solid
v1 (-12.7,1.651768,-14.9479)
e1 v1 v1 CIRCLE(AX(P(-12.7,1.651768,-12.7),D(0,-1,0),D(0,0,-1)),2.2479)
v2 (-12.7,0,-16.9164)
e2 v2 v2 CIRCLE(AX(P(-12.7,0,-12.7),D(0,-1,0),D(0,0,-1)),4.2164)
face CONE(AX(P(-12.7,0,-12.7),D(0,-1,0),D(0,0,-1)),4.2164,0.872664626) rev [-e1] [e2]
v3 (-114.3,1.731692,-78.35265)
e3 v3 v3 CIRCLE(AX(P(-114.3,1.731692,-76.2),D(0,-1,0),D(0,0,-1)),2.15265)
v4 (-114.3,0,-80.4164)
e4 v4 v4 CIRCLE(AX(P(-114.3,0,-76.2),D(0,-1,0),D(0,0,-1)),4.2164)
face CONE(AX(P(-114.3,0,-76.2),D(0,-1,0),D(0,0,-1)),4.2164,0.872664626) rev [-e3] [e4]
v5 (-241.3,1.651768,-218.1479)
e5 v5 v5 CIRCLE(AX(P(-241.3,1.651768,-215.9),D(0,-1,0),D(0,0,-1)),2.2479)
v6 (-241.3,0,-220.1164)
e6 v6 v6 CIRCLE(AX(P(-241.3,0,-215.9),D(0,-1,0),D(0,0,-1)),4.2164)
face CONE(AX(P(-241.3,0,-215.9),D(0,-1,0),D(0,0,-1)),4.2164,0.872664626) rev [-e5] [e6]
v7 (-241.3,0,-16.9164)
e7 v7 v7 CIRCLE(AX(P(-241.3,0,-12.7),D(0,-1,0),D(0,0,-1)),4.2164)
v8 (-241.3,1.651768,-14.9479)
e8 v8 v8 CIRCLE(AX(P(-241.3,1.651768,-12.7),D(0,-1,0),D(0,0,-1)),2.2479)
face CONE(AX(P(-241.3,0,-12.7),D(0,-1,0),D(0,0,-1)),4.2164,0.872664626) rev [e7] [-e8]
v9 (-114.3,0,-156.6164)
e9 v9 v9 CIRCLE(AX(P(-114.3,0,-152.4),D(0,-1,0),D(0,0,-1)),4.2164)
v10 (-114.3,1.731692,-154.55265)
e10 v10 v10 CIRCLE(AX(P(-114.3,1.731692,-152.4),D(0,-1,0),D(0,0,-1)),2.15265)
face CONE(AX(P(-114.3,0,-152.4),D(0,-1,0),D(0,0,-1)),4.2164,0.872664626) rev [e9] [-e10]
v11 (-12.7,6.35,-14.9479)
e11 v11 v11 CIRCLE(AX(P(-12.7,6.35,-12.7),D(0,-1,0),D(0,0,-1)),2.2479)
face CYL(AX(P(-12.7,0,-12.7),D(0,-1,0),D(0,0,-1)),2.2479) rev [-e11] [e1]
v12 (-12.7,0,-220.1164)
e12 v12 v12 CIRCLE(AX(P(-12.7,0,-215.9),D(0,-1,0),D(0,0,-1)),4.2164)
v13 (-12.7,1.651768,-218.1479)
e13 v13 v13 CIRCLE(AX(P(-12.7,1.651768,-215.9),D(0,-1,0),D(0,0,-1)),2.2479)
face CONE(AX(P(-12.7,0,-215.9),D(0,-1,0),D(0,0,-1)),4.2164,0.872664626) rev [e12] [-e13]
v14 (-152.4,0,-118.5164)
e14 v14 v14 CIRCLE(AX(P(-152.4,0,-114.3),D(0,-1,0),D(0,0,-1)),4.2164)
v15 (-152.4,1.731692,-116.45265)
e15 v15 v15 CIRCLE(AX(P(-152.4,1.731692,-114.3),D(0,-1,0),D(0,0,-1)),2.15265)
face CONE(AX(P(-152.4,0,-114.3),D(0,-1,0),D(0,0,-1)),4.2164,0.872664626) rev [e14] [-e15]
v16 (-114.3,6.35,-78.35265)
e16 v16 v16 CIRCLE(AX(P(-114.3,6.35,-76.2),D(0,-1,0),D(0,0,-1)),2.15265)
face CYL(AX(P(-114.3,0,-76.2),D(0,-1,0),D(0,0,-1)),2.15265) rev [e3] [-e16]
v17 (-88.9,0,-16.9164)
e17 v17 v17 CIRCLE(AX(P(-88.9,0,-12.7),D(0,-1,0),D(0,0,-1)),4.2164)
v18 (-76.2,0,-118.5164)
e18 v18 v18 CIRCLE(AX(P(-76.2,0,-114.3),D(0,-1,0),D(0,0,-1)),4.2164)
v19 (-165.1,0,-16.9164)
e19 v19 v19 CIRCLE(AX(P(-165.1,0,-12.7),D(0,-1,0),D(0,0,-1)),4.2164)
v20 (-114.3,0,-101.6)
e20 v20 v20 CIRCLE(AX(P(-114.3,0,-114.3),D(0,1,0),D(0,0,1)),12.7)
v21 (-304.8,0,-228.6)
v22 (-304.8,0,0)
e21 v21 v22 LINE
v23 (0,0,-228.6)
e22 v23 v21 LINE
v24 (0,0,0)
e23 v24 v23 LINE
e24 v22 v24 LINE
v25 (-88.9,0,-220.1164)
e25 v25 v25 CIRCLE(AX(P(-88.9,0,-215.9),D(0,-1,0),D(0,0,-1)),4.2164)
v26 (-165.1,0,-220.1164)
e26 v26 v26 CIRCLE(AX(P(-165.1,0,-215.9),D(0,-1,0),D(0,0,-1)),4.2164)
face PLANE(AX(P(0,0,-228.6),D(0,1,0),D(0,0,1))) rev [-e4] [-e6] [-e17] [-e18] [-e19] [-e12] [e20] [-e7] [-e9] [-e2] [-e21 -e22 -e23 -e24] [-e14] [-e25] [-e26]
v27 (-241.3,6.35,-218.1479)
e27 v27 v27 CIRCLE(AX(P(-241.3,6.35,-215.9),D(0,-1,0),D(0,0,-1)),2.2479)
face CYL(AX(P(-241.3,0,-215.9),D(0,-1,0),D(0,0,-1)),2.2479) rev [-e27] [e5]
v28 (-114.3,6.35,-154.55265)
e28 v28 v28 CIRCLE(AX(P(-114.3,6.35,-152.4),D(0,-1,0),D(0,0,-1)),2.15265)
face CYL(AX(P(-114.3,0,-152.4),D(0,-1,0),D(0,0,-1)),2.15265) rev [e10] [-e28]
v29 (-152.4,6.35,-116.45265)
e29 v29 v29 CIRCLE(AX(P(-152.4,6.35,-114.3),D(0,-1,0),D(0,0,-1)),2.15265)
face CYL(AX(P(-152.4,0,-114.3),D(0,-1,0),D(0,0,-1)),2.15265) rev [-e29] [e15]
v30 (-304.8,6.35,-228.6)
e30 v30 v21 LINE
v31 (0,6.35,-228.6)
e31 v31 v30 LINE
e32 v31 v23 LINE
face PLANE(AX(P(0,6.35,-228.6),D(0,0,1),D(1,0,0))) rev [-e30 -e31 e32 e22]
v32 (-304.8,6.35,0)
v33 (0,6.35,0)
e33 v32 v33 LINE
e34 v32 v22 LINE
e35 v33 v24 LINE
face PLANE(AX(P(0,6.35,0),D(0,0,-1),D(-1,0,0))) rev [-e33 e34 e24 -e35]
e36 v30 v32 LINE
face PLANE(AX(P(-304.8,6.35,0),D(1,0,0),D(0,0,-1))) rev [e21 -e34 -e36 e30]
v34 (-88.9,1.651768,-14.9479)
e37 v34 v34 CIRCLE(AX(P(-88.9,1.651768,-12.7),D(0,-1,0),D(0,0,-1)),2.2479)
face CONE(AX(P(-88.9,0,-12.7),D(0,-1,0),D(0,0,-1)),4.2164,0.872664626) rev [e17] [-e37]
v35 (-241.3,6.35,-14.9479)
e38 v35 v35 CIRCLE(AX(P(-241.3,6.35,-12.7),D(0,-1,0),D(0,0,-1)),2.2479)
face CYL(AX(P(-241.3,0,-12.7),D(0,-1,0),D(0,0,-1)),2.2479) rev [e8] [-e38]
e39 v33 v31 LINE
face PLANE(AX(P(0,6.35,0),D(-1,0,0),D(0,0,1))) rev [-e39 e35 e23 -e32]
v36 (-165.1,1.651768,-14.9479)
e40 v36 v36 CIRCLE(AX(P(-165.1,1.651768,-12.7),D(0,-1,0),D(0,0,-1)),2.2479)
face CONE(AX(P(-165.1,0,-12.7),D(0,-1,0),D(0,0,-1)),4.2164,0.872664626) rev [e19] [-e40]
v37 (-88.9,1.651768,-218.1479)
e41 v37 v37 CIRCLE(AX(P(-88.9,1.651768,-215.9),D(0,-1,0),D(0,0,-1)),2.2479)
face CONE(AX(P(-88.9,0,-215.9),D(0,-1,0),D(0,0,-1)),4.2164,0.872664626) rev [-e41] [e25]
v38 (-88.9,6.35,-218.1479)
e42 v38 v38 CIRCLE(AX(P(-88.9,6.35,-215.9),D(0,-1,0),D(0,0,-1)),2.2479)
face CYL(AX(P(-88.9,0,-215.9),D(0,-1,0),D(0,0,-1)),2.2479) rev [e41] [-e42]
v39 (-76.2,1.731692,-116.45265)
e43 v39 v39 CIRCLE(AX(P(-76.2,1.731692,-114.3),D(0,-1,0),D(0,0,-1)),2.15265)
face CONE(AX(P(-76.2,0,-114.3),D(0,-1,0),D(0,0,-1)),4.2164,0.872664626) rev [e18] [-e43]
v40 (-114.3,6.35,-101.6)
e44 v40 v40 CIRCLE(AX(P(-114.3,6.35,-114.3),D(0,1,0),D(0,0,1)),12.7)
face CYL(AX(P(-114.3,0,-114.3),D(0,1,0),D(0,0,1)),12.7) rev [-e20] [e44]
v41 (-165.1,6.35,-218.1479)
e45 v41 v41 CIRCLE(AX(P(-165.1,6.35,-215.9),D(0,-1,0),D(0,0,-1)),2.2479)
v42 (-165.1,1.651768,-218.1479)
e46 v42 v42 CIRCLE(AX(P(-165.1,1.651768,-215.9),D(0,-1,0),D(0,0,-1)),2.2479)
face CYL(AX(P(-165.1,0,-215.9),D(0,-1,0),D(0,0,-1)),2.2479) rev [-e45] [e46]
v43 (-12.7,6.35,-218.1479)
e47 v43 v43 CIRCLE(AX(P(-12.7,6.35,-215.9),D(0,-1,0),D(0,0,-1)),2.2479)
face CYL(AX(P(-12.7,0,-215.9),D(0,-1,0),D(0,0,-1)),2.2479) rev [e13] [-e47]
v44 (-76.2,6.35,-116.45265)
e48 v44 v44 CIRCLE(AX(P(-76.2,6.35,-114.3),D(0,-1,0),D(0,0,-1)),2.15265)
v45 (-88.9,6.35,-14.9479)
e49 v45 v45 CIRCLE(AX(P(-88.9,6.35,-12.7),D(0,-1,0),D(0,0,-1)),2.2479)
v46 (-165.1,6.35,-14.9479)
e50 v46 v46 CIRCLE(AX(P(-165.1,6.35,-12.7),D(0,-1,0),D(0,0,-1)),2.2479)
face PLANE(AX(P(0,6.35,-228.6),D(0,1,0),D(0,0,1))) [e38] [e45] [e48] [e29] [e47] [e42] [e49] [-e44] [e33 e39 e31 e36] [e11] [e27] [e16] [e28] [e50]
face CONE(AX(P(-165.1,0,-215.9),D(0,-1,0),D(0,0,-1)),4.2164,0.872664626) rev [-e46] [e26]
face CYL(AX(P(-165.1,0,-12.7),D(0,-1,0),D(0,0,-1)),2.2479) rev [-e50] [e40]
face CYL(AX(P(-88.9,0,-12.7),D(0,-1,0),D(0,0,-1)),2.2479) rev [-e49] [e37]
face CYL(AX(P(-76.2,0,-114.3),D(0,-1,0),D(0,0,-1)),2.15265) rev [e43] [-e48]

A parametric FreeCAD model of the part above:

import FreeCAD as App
import Part
import Sketcher

V = App.Vector
Q = App.Units.Quantity


def add_polygon(sketch, points):
    """Adds a closed chain of lines whose ends are joined by coincident constraints."""
    first, n = sketch.GeometryCount, len(points)
    for a, b in zip(points, points[1:] + points[:1]):
        sketch.addGeometry(Part.LineSegment(App.Vector(*a, 0), App.Vector(*b, 0)), False)
    for i in range(n):
        sketch.addConstraint(Sketcher.Constraint("Coincident", first + i, 2, first + (i + 1) % n, 1))

doc = App.newDocument("Part")
params = doc.addObject("Spreadsheet::Sheet", "Params")
for row, (alias, value) in enumerate([
    ("sketch1_width", "12 in"),
    ("sketch1_height", "9 in"),
    ("pad1_length", "0.25 in"),
    ("hole_diameter", "0.1695 in"),
    ("hole_csink_diameter", "0.332 in"),
    ("sketch3_diameter", "1 in"),
    ("sketch4_diameter", "0.177 in"),
    ("hole2_diameter", "0.177 in"),
    ("hole2_csink_diameter", "0.332 in"),
    ("linearpattern_pitch", "3 in"),
], start=1):
    params.set(f"A{row}", alias)
    params.set(f"B{row}", "=" + value)
    params.setAlias(f"B{row}", alias)

body = doc.addObject("PartDesign::Body", "Body")

sketch1 = body.newObject("Sketcher::SketchObject", "Sketch")
sketch1.AttachmentSupport = (doc.getObject("XZ_Plane"), [""])
sketch1.MapMode = "FlatFace"
add_polygon(sketch1, [(-305, -229), (-305, 0), (0, 0), (0, -229)])
sketch1.addConstraint([
    Sketcher.Constraint("Vertical", 0),
    Sketcher.Constraint("Horizontal", 1),
    Sketcher.Constraint("Vertical", 2),
    Sketcher.Constraint("Horizontal", 3),
    Sketcher.Constraint("Coincident", 1, 2, -1, 1),
    Sketcher.Constraint("DistanceX", 1, 1, 1, 2, Q("12 in")),
    Sketcher.Constraint("DistanceY", 0, 1, 0, 2, Q("9 in")),
])
sketch1.setExpression("Constraints[9]", "Params.sketch1_width")
sketch1.setExpression("Constraints[10]", "Params.sketch1_height")
pad1 = body.newObject("PartDesign::Pad", "Pad")
pad1.Profile = sketch1
pad1.setExpression("Length", "Params.pad1_length")
pad1.Reversed = True

sketch2 = body.newObject("Sketcher::SketchObject", "Sketch001")
sketch2.AttachmentSupport = (doc.getObject("XZ_Plane"), [""])
sketch2.MapMode = "FlatFace"
sketch2.addGeometry(Part.Circle(V(-114.3, -76.2, 0), V(0, 0, 1), 2.2), False)
sketch2.addConstraint([
    Sketcher.Constraint("DistanceY", 0, 3, -1, 1, Q("3 in")),
    Sketcher.Constraint("Diameter", 0, Q("0.1695 in")),
    Sketcher.Constraint("DistanceX", 0, 3, -1, 1, Q("4.5 in")),
])
doc.recompute()
hole = body.newObject("PartDesign::Hole", "Hole")
hole.Profile = sketch2
hole.ThreadType = "None"
hole.setExpression("Diameter", "Params.hole_diameter")
hole.DepthType = "ThroughAll"
hole.HoleCutType = "Countersink"
hole.setExpression("HoleCutDiameter", "Params.hole_csink_diameter")
hole.HoleCutCountersinkAngle = 100
doc.recompute()

datumline = body.newObject("PartDesign::Line", "DatumLine")
datumline.Placement = App.Placement(V(-114.3, 0, -114.3), App.Rotation(V(0, 0, 1), V(0, 1, 0)))
polarpattern = body.newObject("PartDesign::PolarPattern", "PolarPattern")
polarpattern.Originals = [hole]
polarpattern.Axis = (datumline, [""])
polarpattern.Angle = 360
polarpattern.Occurrences = 4
body.Tip = polarpattern

sketch3 = body.newObject("Sketcher::SketchObject", "Sketch002")
sketch3.AttachmentSupport = (doc.getObject("XZ_Plane"), [""])
sketch3.MapMode = "FlatFace"
sketch3.AttachmentOffset = App.Placement(V(0, 0, -0.25 * 25.4), App.Rotation())
sketch3.addGeometry(Part.Circle(V(-114, -114, 0), V(0, 0, 1), 13), False)
sketch3.addConstraint([
    Sketcher.Constraint("Diameter", 0, Q("1 in")),
    Sketcher.Constraint("DistanceX", 0, 3, -1, 1, Q("4.5 in")),
    Sketcher.Constraint("DistanceY", 0, 3, -1, 1, Q("4.5 in")),
])
sketch3.setExpression("Constraints[0]", "Params.sketch3_diameter")
pocket1 = body.newObject("PartDesign::Pocket", "Pocket")
pocket1.Profile = sketch3
pocket1.Type = "ThroughAll"
pocket1.Reversed = True

sketch4 = body.newObject("Sketcher::SketchObject", "Sketch003")
sketch4.AttachmentSupport = (doc.getObject("XZ_Plane"), [""])
sketch4.MapMode = "FlatFace"
sketch4.addGeometry([
    Part.Circle(V(-12.7, -12.7, 0), V(0, 0, 1), 2.2),
    Part.Circle(V(-12.7, -215.9, 0), V(0, 0, 1), 2.2),
], False)
sketch4.addConstraint([
    Sketcher.Constraint("Equal", 0, 1),
    Sketcher.Constraint("Vertical", 0, 3, 1, 3),
    Sketcher.Constraint("Diameter", 0, Q("0.177 in")),
    Sketcher.Constraint("DistanceY", 1, 3, 0, 3, Q("8 in")),
    Sketcher.Constraint("DistanceX", 0, 3, -1, 1, Q("0.5 in")),
    Sketcher.Constraint("DistanceY", 0, 3, -1, 1, Q("0.5 in")),
])
sketch4.setExpression("Constraints[2]", "Params.sketch4_diameter")
doc.recompute()
hole2 = body.newObject("PartDesign::Hole", "Hole001")
hole2.Profile = sketch4
hole2.ThreadType = "None"
hole2.setExpression("Diameter", "Params.hole2_diameter")
hole2.DepthType = "ThroughAll"
hole2.HoleCutType = "Countersink"
hole2.setExpression("HoleCutDiameter", "Params.hole2_csink_diameter")
hole2.HoleCutCountersinkAngle = 100
doc.recompute()

linearpattern = body.newObject("PartDesign::LinearPattern", "LinearPattern")
linearpattern.Originals = [hole2]
linearpattern.Direction = (doc.getObject("X_Axis"), [""])
linearpattern.Mode = "offset"
linearpattern.setExpression("Offset", "Params.linearpattern_pitch")
linearpattern.Occurrences = 4
linearpattern.Reversed = True
body.Tip = linearpattern

doc.recompute()
